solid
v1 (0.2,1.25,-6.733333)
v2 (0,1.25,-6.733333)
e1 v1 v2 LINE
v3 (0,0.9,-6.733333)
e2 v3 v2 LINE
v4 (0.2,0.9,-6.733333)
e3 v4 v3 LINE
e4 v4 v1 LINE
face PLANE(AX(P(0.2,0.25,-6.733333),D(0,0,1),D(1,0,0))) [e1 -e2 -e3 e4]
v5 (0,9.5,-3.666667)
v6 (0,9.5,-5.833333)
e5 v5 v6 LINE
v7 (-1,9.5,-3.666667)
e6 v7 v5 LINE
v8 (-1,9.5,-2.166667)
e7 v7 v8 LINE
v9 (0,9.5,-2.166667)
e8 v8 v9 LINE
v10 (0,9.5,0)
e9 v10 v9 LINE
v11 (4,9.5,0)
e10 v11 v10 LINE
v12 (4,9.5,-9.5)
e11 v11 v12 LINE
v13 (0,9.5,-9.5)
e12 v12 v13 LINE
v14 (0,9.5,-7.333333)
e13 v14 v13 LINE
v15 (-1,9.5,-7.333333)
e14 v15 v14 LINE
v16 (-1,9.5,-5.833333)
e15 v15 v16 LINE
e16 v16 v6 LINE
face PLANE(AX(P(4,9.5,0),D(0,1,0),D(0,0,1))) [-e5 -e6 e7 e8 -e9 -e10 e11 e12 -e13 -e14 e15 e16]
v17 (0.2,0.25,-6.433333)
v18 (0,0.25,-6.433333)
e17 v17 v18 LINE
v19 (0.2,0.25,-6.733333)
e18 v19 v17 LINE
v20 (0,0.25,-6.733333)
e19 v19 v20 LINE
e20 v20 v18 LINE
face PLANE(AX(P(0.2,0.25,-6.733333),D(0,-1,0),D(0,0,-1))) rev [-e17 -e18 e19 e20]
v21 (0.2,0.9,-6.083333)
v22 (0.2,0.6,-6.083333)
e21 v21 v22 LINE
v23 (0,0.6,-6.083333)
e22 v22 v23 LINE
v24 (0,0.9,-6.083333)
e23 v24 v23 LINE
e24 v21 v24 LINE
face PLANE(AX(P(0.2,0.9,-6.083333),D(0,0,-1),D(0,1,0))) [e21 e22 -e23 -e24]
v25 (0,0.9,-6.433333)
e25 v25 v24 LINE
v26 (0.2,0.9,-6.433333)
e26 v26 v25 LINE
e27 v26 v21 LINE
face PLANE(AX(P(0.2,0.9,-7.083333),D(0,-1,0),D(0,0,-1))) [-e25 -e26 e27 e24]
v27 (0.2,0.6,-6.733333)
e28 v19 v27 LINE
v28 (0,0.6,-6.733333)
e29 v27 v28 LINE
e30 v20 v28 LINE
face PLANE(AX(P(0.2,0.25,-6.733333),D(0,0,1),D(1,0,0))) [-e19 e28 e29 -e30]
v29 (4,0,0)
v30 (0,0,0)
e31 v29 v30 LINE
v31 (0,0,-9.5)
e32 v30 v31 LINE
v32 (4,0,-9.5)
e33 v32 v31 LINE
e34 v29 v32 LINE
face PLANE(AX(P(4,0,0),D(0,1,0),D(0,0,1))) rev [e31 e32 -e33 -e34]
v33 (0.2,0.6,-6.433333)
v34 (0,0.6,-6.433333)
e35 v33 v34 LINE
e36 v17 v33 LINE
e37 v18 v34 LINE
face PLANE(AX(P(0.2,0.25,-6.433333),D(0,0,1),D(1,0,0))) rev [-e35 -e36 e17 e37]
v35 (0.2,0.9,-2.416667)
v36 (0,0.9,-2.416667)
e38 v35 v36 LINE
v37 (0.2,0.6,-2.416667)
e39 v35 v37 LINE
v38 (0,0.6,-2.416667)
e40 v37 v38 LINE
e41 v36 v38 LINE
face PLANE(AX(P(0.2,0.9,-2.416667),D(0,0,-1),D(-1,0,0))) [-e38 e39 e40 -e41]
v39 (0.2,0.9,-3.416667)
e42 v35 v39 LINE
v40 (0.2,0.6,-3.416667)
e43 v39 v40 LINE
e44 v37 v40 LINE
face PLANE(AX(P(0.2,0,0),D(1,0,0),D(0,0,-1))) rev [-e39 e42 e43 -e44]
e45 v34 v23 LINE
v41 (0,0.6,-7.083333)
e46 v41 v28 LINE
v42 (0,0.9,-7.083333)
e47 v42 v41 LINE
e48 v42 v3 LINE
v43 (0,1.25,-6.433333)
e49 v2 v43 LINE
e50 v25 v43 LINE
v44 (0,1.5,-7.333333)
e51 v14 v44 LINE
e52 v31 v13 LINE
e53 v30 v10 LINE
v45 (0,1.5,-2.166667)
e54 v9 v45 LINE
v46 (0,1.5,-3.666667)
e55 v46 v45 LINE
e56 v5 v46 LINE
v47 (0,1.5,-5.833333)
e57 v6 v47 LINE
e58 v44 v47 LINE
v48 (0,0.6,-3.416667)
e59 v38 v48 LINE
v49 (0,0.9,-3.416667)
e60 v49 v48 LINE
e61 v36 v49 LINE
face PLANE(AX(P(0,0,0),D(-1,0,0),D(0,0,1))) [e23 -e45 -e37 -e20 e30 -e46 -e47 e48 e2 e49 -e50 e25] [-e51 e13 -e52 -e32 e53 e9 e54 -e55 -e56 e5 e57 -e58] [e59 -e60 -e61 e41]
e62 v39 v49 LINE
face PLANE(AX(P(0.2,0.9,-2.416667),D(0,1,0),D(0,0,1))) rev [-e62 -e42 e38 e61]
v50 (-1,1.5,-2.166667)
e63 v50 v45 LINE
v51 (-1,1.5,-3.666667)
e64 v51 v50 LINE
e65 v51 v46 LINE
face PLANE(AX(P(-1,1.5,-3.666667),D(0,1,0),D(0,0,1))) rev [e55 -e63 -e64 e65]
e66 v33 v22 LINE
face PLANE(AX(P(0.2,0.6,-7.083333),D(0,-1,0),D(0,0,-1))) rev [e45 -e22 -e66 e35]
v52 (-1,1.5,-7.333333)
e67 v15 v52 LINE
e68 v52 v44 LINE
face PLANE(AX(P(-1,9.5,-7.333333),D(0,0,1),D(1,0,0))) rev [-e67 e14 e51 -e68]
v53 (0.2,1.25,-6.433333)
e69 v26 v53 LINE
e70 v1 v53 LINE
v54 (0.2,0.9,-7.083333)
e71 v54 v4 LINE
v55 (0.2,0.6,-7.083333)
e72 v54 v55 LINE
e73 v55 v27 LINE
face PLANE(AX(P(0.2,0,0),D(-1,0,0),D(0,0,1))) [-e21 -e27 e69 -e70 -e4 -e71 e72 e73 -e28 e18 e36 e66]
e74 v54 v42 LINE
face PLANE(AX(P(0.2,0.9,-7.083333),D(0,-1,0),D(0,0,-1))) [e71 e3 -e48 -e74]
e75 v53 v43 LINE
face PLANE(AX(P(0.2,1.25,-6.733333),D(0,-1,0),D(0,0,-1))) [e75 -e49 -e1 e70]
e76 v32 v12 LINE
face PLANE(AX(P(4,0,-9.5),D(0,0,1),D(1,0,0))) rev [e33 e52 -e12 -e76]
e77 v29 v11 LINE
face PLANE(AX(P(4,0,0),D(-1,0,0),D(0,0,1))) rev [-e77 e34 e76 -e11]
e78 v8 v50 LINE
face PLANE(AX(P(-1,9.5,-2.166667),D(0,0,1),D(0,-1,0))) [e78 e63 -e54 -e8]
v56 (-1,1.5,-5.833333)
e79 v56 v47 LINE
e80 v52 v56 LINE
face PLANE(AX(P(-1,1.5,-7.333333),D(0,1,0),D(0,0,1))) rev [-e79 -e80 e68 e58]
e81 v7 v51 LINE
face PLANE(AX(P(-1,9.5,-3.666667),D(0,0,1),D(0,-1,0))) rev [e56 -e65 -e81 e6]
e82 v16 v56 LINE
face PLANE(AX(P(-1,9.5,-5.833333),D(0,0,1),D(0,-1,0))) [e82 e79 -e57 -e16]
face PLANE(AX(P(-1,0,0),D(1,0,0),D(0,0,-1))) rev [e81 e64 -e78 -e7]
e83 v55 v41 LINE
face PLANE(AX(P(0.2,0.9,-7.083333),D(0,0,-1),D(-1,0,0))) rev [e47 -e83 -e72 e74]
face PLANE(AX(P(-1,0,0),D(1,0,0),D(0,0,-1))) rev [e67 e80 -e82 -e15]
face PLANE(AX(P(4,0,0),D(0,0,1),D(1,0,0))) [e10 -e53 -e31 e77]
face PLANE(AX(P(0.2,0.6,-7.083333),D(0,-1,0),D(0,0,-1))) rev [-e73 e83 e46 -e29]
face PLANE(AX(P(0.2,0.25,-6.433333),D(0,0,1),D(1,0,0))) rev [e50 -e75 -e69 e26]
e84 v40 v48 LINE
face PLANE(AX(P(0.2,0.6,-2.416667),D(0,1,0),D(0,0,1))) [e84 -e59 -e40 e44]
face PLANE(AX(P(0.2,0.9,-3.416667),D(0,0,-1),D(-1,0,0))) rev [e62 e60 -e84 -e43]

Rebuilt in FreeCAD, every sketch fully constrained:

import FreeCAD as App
import Part
import Sketcher

doc = App.newDocument("Part")
params = doc.addObject("Spreadsheet::Sheet", "Params")
for row, (alias, value) in enumerate([
    ("sketch1_width", "9.5 mm"),
    ("pad1_length", "4 mm"),
    ("sketch2_width", "8 mm"),
    ("sketch2_height", "1.5 mm"),
    ("pad2_length", "1 mm"),
    ("sketch3_height", "1 mm"),
    ("sketch3_width", "0.3 mm"),
    ("pocket1_length", "0.2 mm"),
], start=1):
    params.set(f"A{row}", alias)
    params.set(f"B{row}", "=" + value)
    params.setAlias(f"B{row}", alias)

body = doc.addObject("PartDesign::Body", "Body")

sketch1 = body.newObject("Sketcher::SketchObject", "Sketch")
sketch1.AttachmentSupport = (doc.getObject("YZ_Plane"), [""])
sketch1.MapMode = "FlatFace"
sketch1.addGeometry([
    Part.LineSegment(App.Vector(10, 0, 0), App.Vector(0, 0, 0)),
    Part.LineSegment(App.Vector(0, 0, 0), App.Vector(0, -10, 0)),
    Part.LineSegment(App.Vector(0, -10, 0), App.Vector(10, -10, 0)),
    Part.LineSegment(App.Vector(10, -10, 0), App.Vector(10, 0, 0)),
], False)
sketch1.addConstraint([
    Sketcher.Constraint("Coincident", 0, 2, 1, 1),
    Sketcher.Constraint("Coincident", 1, 2, 2, 1),
    Sketcher.Constraint("Coincident", 2, 2, 3, 1),
    Sketcher.Constraint("Coincident", 3, 2, 0, 1),
    Sketcher.Constraint("Horizontal", 0),
    Sketcher.Constraint("Vertical", 1),
    Sketcher.Constraint("Horizontal", 2),
    Sketcher.Constraint("Vertical", 3),
    Sketcher.Constraint("Coincident", 0, 2, -1, 1),
    Sketcher.Constraint("Equal", 2, 1),
    Sketcher.Constraint("DistanceX", 0, 2, 0, 1, 9.5),
])
sketch1.setExpression("Constraints[10]", "Params.sketch1_width")
pad1 = body.newObject("PartDesign::Pad", "Pad")
pad1.Profile = sketch1
pad1.setExpression("Length", "Params.pad1_length")

sketch2 = body.newObject("Sketcher::SketchObject", "Sketch001")
sketch2.AttachmentSupport = (doc.getObject("YZ_Plane"), [""])
sketch2.MapMode = "FlatFace"
sketch2.addGeometry([
    Part.LineSegment(App.Vector(9.5, -5.8, 0), App.Vector(1.5, -5.8, 0)),
    Part.LineSegment(App.Vector(1.5, -5.8, 0), App.Vector(1.5, -7.3, 0)),
    Part.LineSegment(App.Vector(1.5, -7.3, 0), App.Vector(9.5, -7.3, 0)),
    Part.LineSegment(App.Vector(9.5, -7.3, 0), App.Vector(9.5, -5.8, 0)),
    Part.LineSegment(App.Vector(9.5, -2.2, 0), App.Vector(1.5, -2.2, 0)),
    Part.LineSegment(App.Vector(1.5, -2.2, 0), App.Vector(1.5, -3.7, 0)),
    Part.LineSegment(App.Vector(1.5, -3.7, 0), App.Vector(9.5, -3.7, 0)),
    Part.LineSegment(App.Vector(9.5, -3.7, 0), App.Vector(9.5, -2.2, 0)),
], False)
sketch2.addConstraint([
    Sketcher.Constraint("Coincident", 0, 2, 1, 1),
    Sketcher.Constraint("Coincident", 1, 2, 2, 1),
    Sketcher.Constraint("Coincident", 2, 2, 3, 1),
    Sketcher.Constraint("Coincident", 3, 2, 0, 1),
    Sketcher.Constraint("Coincident", 4, 2, 5, 1),
    Sketcher.Constraint("Coincident", 5, 2, 6, 1),
    Sketcher.Constraint("Coincident", 6, 2, 7, 1),
    Sketcher.Constraint("Coincident", 7, 2, 4, 1),
    Sketcher.Constraint("Horizontal", 0),
    Sketcher.Constraint("Vertical", 1),
    Sketcher.Constraint("Horizontal", 2),
    Sketcher.Constraint("Vertical", 3),
    Sketcher.Constraint("Horizontal", 4),
    Sketcher.Constraint("Vertical", 5),
    Sketcher.Constraint("Horizontal", 6),
    Sketcher.Constraint("Vertical", 7),
    Sketcher.Constraint("Vertical", 1, 2, 4, 2),
    Sketcher.Constraint("Vertical", 3, 2, 6, 2),
    Sketcher.Constraint("Equal", 3, 5),
    Sketcher.Constraint("DistanceX", 0, 2, 0, 1, 8.0),
    Sketcher.Constraint("DistanceY", 1, 2, 1, 1, 1.5),
    Sketcher.Constraint("DistanceX", -1, 1, 0, 2, 1.5),
    Sketcher.Constraint("DistanceY", 0, 2, -1, 1, 5.833333),
    Sketcher.Constraint("DistanceY", 4, 2, -1, 1, 2.166667),
])
sketch2.setExpression("Constraints[19]", "Params.sketch2_width")
sketch2.setExpression("Constraints[20]", "Params.sketch2_height")
pad2 = body.newObject("PartDesign::Pad", "Pad001")
pad2.Profile = sketch2
pad2.setExpression("Length", "Params.pad2_length")
pad2.Reversed = True

sketch3 = body.newObject("Sketcher::SketchObject", "Sketch002")
sketch3.AttachmentSupport = (doc.getObject("YZ_Plane"), [""])
sketch3.MapMode = "FlatFace"
sketch3.addGeometry([
    Part.LineSegment(App.Vector(0.9, -6.08, 0), App.Vector(0.6, -6.08, 0)),
    Part.LineSegment(App.Vector(0.6, -6.08, 0), App.Vector(0.6, -6.43, 0)),
    Part.LineSegment(App.Vector(0.6, -6.43, 0), App.Vector(0.25, -6.43, 0)),
    Part.LineSegment(App.Vector(0.25, -6.43, 0), App.Vector(0.25, -6.73, 0)),
    Part.LineSegment(App.Vector(0.25, -6.73, 0), App.Vector(0.6, -6.73, 0)),
    Part.LineSegment(App.Vector(0.6, -6.73, 0), App.Vector(0.6, -7.08, 0)),
    Part.LineSegment(App.Vector(0.6, -7.08, 0), App.Vector(0.9, -7.08, 0)),
    Part.LineSegment(App.Vector(0.9, -7.08, 0), App.Vector(0.9, -6.73, 0)),
    Part.LineSegment(App.Vector(0.9, -6.73, 0), App.Vector(1.25, -6.73, 0)),
    Part.LineSegment(App.Vector(1.25, -6.73, 0), App.Vector(1.25, -6.43, 0)),
    Part.LineSegment(App.Vector(1.25, -6.43, 0), App.Vector(0.9, -6.43, 0)),
    Part.LineSegment(App.Vector(0.9, -6.43, 0), App.Vector(0.9, -6.08, 0)),
    Part.LineSegment(App.Vector(0.9, -2.42, 0), App.Vector(0.6, -2.42, 0)),
    Part.LineSegment(App.Vector(0.6, -2.42, 0), App.Vector(0.6, -3.42, 0)),
    Part.LineSegment(App.Vector(0.6, -3.42, 0), App.Vector(0.9, -3.42, 0)),
    Part.LineSegment(App.Vector(0.9, -3.42, 0), App.Vector(0.9, -2.42, 0)),
], False)
sketch3.addConstraint([
    Sketcher.Constraint("Coincident", 0, 2, 1, 1),
    Sketcher.Constraint("Coincident", 1, 2, 2, 1),
    Sketcher.Constraint("Coincident", 2, 2, 3, 1),
    Sketcher.Constraint("Coincident", 3, 2, 4, 1),
    Sketcher.Constraint("Coincident", 4, 2, 5, 1),
    Sketcher.Constraint("Coincident", 5, 2, 6, 1),
    Sketcher.Constraint("Coincident", 6, 2, 7, 1),
    Sketcher.Constraint("Coincident", 7, 2, 8, 1),
    Sketcher.Constraint("Coincident", 8, 2, 9, 1),
    Sketcher.Constraint("Coincident", 9, 2, 10, 1),
    Sketcher.Constraint("Coincident", 10, 2, 11, 1),
    Sketcher.Constraint("Coincident", 11, 2, 0, 1),
    Sketcher.Constraint("Coincident", 12, 2, 13, 1),
    Sketcher.Constraint("Coincident", 13, 2, 14, 1),
    Sketcher.Constraint("Coincident", 14, 2, 15, 1),
    Sketcher.Constraint("Coincident", 15, 2, 12, 1),
    Sketcher.Constraint("Horizontal", 0),
    Sketcher.Constraint("Vertical", 1),
    Sketcher.Constraint("Horizontal", 2),
    Sketcher.Constraint("Vertical", 3),
    Sketcher.Constraint("Horizontal", 4),
    Sketcher.Constraint("Vertical", 5),
    Sketcher.Constraint("Horizontal", 6),
    Sketcher.Constraint("Vertical", 7),
    Sketcher.Constraint("Horizontal", 8),
    Sketcher.Constraint("Vertical", 9),
    Sketcher.Constraint("Horizontal", 10),
    Sketcher.Constraint("Vertical", 11),
    Sketcher.Constraint("Horizontal", 12),
    Sketcher.Constraint("Vertical", 13),
    Sketcher.Constraint("Horizontal", 14),
    Sketcher.Constraint("Vertical", 15),
    Sketcher.Constraint("Horizontal", 4, 2, 7, 2),
    Sketcher.Constraint("Horizontal", 2, 2, 9, 2),
    Sketcher.Constraint("Vertical", 1, 2, 4, 2),
    Sketcher.Constraint("Vertical", 7, 2, 10, 2),
    Sketcher.Constraint("Vertical", 5, 2, 12, 2),
    Sketcher.Constraint("Vertical", 11, 2, 14, 2),
    Sketcher.Constraint("Equal", 4, 8),
    Sketcher.Constraint("Equal", 10, 1),
    Sketcher.Constraint("Equal", 14, 3),
    Sketcher.Constraint("Equal", 1, 5),
    Sketcher.Constraint("DistanceY", 13, 2, 13, 1, 1.0),
    Sketcher.Constraint("DistanceX", 0, 2, 0, 1, 0.3),
    Sketcher.Constraint("DistanceY", 5, 2, 0, 2, 1.0),
    Sketcher.Constraint("DistanceX", -1, 1, 0, 2, 0.6),
    Sketcher.Constraint("DistanceY", 0, 2, -1, 1, 6.083333),
    Sketcher.Constraint("DistanceY", 12, 2, -1, 1, 2.416667),
])
sketch3.setExpression("Constraints[42]", "Params.sketch3_height")
sketch3.setExpression("Constraints[43]", "Params.sketch3_width")
pocket1 = body.newObject("PartDesign::Pocket", "Pocket")
pocket1.Profile = sketch3
pocket1.setExpression("Length", "Params.pocket1_length")
pocket1.Reversed = True

doc.recompute()
